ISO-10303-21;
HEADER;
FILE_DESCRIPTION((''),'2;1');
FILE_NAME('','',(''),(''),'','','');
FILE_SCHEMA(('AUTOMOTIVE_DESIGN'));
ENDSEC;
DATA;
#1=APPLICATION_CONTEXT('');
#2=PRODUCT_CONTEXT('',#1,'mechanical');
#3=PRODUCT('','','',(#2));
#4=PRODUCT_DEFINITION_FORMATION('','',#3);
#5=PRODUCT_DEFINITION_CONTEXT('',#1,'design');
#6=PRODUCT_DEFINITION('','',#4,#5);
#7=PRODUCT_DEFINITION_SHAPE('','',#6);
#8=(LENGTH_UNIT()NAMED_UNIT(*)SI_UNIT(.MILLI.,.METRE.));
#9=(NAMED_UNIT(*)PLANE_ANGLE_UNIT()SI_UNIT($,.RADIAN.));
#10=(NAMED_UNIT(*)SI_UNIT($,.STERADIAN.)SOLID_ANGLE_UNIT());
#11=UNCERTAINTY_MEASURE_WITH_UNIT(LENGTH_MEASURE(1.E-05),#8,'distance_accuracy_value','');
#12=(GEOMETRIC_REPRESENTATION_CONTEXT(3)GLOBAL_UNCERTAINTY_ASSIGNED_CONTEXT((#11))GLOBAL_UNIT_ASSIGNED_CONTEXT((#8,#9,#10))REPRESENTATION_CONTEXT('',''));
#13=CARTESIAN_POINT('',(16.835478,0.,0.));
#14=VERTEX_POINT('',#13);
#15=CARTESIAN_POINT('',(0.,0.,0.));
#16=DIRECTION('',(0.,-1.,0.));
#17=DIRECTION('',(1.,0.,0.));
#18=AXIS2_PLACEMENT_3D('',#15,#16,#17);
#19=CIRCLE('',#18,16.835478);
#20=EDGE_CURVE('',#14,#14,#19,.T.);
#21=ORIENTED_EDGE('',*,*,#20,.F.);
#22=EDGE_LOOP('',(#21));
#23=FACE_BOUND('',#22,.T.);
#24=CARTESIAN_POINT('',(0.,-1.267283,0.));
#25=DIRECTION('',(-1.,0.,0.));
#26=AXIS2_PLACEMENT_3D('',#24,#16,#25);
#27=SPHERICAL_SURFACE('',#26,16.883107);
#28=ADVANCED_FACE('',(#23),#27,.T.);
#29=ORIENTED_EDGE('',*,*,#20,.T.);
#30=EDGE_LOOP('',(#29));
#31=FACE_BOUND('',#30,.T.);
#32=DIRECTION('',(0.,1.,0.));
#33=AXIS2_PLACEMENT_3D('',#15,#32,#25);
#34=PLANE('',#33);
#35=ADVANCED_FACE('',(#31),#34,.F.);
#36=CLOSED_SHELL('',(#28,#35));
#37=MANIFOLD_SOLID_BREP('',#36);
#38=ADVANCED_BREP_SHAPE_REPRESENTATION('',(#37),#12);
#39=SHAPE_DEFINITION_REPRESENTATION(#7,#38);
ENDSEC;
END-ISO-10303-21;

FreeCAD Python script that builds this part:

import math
import FreeCAD as App
import Part
import Sketcher

V = App.Vector
Q = App.Units.Quantity

doc = App.newDocument("Part")
body = doc.addObject("PartDesign::Body", "Body")

sketch1 = body.newObject("Sketcher::SketchObject", "Sketch")
sketch1.AttachmentSupport = (doc.getObject("XY_Plane"), [""])
sketch1.MapMode = "FlatFace"
sketch1.addGeometry(Part.ArcOfCircle(Part.Circle(V(0, -1, 0), V(0, 0, 1), 17), math.radians(90), math.radians(176)), False)
sketch1.addGeometry(Part.LineSegment(V(-17, 0, 0), V(0, 0, 0)), False)
sketch1.addGeometry(Part.LineSegment(V(0, 0, 0), V(0, 16, 0)), False)
sketch1.addConstraint(Sketcher.Constraint("Coincident", 0, 2, 1, 1))
sketch1.addConstraint(Sketcher.Constraint("Coincident", 1, 2, 2, 1))
sketch1.addConstraint(Sketcher.Constraint("Coincident", 2, 2, 0, 1))
sketch1.addConstraint(Sketcher.Constraint("Horizontal", 1))
sketch1.addConstraint(Sketcher.Constraint("Vertical", 2))
sketch1.addConstraint(Sketcher.Constraint("Coincident", 1, 2, -1, 1))
sketch1.addConstraint(Sketcher.Constraint("PointOnObject", 0, 3, -2))
sketch1.addConstraint(Sketcher.Constraint("Radius", 0, Q("16.883107 mm")))
sketch1.addConstraint(Sketcher.Constraint("DistanceX", 1, 1, 1, 2, Q("16.835478 mm")))
revolution = body.newObject("PartDesign::Revolution", "Revolution")
revolution.Profile = sketch1
revolution.ReferenceAxis = (sketch1, ["V_Axis"])
revolution.Angle = 360

doc.recompute()
